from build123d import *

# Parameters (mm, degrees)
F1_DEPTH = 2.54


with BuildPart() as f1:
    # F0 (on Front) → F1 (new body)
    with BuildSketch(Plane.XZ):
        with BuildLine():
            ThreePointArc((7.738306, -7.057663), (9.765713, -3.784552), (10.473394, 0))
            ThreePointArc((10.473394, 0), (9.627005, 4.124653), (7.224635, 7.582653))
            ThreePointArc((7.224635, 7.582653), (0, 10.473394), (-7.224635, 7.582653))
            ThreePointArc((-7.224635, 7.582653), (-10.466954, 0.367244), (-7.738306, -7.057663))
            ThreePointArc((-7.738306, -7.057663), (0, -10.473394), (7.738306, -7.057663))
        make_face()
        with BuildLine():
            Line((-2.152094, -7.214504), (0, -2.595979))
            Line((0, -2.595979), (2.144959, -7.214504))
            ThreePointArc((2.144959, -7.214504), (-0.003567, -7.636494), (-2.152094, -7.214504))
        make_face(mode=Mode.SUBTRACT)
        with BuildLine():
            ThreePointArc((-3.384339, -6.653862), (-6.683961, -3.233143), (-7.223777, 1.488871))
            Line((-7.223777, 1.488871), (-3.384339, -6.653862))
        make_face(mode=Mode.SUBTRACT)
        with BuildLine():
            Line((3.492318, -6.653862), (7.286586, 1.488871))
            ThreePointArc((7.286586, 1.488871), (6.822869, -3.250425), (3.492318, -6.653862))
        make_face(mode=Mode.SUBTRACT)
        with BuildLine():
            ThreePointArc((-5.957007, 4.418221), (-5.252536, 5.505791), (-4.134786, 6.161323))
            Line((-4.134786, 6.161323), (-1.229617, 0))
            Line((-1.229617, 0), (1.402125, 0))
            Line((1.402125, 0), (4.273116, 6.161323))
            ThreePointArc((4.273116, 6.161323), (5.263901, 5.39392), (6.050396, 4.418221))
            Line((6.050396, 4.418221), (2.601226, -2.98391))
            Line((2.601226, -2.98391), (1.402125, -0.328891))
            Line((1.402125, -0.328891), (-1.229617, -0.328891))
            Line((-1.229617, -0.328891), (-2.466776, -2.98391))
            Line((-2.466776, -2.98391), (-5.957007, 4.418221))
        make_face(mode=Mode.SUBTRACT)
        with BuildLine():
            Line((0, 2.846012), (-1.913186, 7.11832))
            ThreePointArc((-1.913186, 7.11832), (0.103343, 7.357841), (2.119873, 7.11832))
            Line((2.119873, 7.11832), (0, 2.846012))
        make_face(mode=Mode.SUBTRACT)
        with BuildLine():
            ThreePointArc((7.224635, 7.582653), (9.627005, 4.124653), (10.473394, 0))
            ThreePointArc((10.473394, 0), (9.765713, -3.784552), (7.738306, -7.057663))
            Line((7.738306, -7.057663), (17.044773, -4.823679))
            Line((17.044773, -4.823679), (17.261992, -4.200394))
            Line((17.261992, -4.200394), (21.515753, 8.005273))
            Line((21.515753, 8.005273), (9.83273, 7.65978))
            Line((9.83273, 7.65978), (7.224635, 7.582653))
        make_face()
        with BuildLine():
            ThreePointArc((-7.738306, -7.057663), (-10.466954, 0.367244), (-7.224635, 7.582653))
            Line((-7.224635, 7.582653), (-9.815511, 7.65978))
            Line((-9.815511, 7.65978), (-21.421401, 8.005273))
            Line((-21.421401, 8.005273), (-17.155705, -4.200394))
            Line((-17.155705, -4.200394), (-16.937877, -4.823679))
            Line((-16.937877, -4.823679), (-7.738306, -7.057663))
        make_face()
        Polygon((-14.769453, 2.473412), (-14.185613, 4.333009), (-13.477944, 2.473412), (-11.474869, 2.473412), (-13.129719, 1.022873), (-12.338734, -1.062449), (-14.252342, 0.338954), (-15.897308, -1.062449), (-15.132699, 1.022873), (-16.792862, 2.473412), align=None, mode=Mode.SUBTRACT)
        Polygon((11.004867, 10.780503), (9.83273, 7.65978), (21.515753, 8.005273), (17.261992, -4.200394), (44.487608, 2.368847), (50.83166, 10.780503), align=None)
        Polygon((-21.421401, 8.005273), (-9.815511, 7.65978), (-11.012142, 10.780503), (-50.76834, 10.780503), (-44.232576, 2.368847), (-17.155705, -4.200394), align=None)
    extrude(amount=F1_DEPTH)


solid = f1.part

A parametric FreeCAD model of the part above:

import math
import FreeCAD as App
import Part
import Sketcher
from FreeCAD import Vector
Q = App.Units.Quantity

doc = App.newDocument("Part")
body = doc.addObject("PartDesign::Body", "Body")

# Sketch on XZ plane
sketch1 = body.newObject("Sketcher::SketchObject", "Sketch")
sketch1.AttachmentSupport = (doc.getObject("XZ_Plane"), [""])
sketch1.MapMode = "FlatFace"
sketch1.addGeometry([
    Part.ArcOfCircle(Part.Circle(Vector(0, 0.000001, 0), Vector(0, 0, 1), 10.473395), math.radians(-137.633856), math.radians(-42.366144)),  # 0
    Part.LineSegment(Vector(7.738306, -7.057663, 0), Vector(17.044773, -4.823679, 0)),  # 1
    Part.LineSegment(Vector(17.044773, -4.823679, 0), Vector(17.261992, -4.200394, 0)),  # 2
    Part.LineSegment(Vector(17.261992, -4.200394, 0), Vector(44.487608, 2.368847, 0)),  # 3
    Part.LineSegment(Vector(44.487608, 2.368847, 0), Vector(50.83166, 10.780503, 0)),  # 4
    Part.LineSegment(Vector(50.83166, 10.780503, 0), Vector(11.004867, 10.780503, 0)),  # 5
    Part.LineSegment(Vector(11.004867, 10.780503, 0), Vector(9.83273, 7.65978, 0)),  # 6
    Part.LineSegment(Vector(9.83273, 7.65978, 0), Vector(7.224635, 7.582653, 0)),  # 7
    Part.ArcOfCircle(Part.Circle(Vector(0, 0.000001, 0), Vector(0, 0, 1), 10.473393), math.radians(46.385053), math.radians(133.614947)),  # 8
    Part.LineSegment(Vector(-7.224635, 7.582653, 0), Vector(-9.815511, 7.65978, 0)),  # 9
    Part.LineSegment(Vector(-9.815511, 7.65978, 0), Vector(-11.012142, 10.780503, 0)),  # 10
    Part.LineSegment(Vector(-11.012142, 10.780503, 0), Vector(-50.76834, 10.780503, 0)),  # 11
    Part.LineSegment(Vector(-50.76834, 10.780503, 0), Vector(-44.232576, 2.368847, 0)),  # 12
    Part.LineSegment(Vector(-44.232576, 2.368847, 0), Vector(-17.155705, -4.200394, 0)),  # 13
    Part.LineSegment(Vector(-17.155705, -4.200394, 0), Vector(-16.937877, -4.823679, 0)),  # 14
    Part.LineSegment(Vector(-16.937877, -4.823679, 0), Vector(-7.738306, -7.057663, 0)),  # 15
    Part.LineSegment(Vector(-7.223777, 1.488871, 0), Vector(-3.384339, -6.653862, 0)),  # 16
    Part.ArcOfCircle(Part.Circle(Vector(0.01222, -0.07578, 0), Vector(0, 0, 1), 7.403228), math.radians(167.798693), math.radians(242.690667)),  # 17
    Part.ArcOfCircle(Part.Circle(Vector(-0.003567, -1.955978, 0), Vector(0, 0, 1), 5.680516), math.radians(-112.223925), math.radians(-67.776075)),  # 18
    Part.LineSegment(Vector(-2.152094, -7.214504, 0), Vector(0, -2.595979, 0)),  # 19
    Part.LineSegment(Vector(0, -2.595979, 0), Vector(2.144959, -7.214504, 0)),  # 20
    Part.ArcOfCircle(Part.Circle(Vector(0.324164, -0.222224, 0), Vector(0, 0, 1), 7.1696), math.radians(-63.775653), math.radians(13.807454)),  # 21
    Part.LineSegment(Vector(3.492318, -6.653862, 0), Vector(7.286586, 1.488871, 0)),  # 22
    Part.LineSegment(Vector(-16.792862, 2.473412, 0), Vector(-14.769453, 2.473412, 0)),  # 23
    Part.LineSegment(Vector(-14.769453, 2.473412, 0), Vector(-14.185613, 4.333009, 0)),  # 24
    Part.LineSegment(Vector(-14.185613, 4.333009, 0), Vector(-13.477944, 2.473412, 0)),  # 25
    Part.LineSegment(Vector(-13.477944, 2.473412, 0), Vector(-11.474869, 2.473412, 0)),  # 26
    Part.LineSegment(Vector(-11.474869, 2.473412, 0), Vector(-13.129719, 1.022873, 0)),  # 27
    Part.LineSegment(Vector(-13.129719, 1.022873, 0), Vector(-12.338734, -1.062449, 0)),  # 28
    Part.LineSegment(Vector(-12.338734, -1.062449, 0), Vector(-14.252342, 0.338954, 0)),  # 29
    Part.LineSegment(Vector(-14.252342, 0.338954, 0), Vector(-15.897308, -1.062449, 0)),  # 30
    Part.LineSegment(Vector(-15.897308, -1.062449, 0), Vector(-15.132699, 1.022873, 0)),  # 31
    Part.LineSegment(Vector(-15.132699, 1.022873, 0), Vector(-16.792862, 2.473412, 0)),  # 32
    Part.LineSegment(Vector(-2.466776, -2.98391, 0), Vector(-5.957007, 4.418221, 0)),  # 33
    Part.ArcOfCircle(Part.Circle(Vector(-3.311231, 3.47637, 0), Vector(0, 0, 1), 2.808419), math.radians(107.052341), math.radians(160.405146)),  # 34
    Part.LineSegment(Vector(-4.134786, 6.161323, 0), Vector(-1.229617, 0, 0)),  # 35
    Part.LineSegment(Vector(-1.229617, 0, 0), Vector(1.402125, 0, 0)),  # 36
    Part.LineSegment(Vector(1.402125, 0, 0), Vector(4.273116, 6.161323, 0)),  # 37
    Part.ArcOfCircle(Part.Circle(Vector(1.494583, 1.550694, 0), Vector(0, 0, 1), 5.383135), math.radians(32.187192), math.radians(58.925297)),  # 38
    Part.LineSegment(Vector(6.050396, 4.418221, 0), Vector(2.601226, -2.98391, 0)),  # 39
    Part.LineSegment(Vector(2.601226, -2.98391, 0), Vector(1.402125, -0.328891, 0)),  # 40
    Part.LineSegment(Vector(1.402125, -0.328891, 0), Vector(-1.229617, -0.328891, 0)),  # 41
    Part.LineSegment(Vector(-1.229617, -0.328891, 0), Vector(-2.466776, -2.98391, 0)),  # 42
    Part.LineSegment(Vector(2.119873, 7.11832, 0), Vector(0, 2.846012, 0)),  # 43
    Part.LineSegment(Vector(0, 2.846012, 0), Vector(-1.913186, 7.11832, 0)),  # 44
    Part.ArcOfCircle(Part.Circle(Vector(0.103344, -1.25051, 0), Vector(0, 0, 1), 8.608351), math.radians(76.452423), math.radians(103.547577)),  # 45
], False)
sketch1.addConstraint([
    Sketcher.Constraint("Coincident", 0, 2, 1, 1),
    Sketcher.Constraint("Coincident", 1, 2, 2, 1),
    Sketcher.Constraint("Coincident", 2, 2, 3, 1),
    Sketcher.Constraint("Coincident", 3, 2, 4, 1),
    Sketcher.Constraint("Coincident", 4, 2, 5, 1),
    Sketcher.Constraint("Coincident", 5, 2, 6, 1),
    Sketcher.Constraint("Coincident", 6, 2, 7, 1),
    Sketcher.Constraint("Coincident", 7, 2, 8, 1),
    Sketcher.Constraint("Coincident", 8, 2, 9, 1),
    Sketcher.Constraint("Coincident", 9, 2, 10, 1),
    Sketcher.Constraint("Coincident", 10, 2, 11, 1),
    Sketcher.Constraint("Coincident", 11, 2, 12, 1),
    Sketcher.Constraint("Coincident", 12, 2, 13, 1),
    Sketcher.Constraint("Coincident", 13, 2, 14, 1),
    Sketcher.Constraint("Coincident", 14, 2, 15, 1),
    Sketcher.Constraint("Coincident", 15, 2, 0, 1),
    Sketcher.Constraint("Coincident", 16, 1, 17, 1),
    Sketcher.Constraint("Coincident", 17, 2, 16, 2),
    Sketcher.Constraint("Coincident", 18, 1, 19, 1),
    Sketcher.Constraint("Coincident", 19, 2, 20, 1),
    Sketcher.Constraint("Coincident", 20, 2, 18, 2),
    Sketcher.Constraint("Coincident", 21, 1, 22, 1),
    Sketcher.Constraint("Coincident", 22, 2, 21, 2),
    Sketcher.Constraint("Coincident", 23, 2, 24, 1),
    Sketcher.Constraint("Coincident", 24, 2, 25, 1),
    Sketcher.Constraint("Coincident", 25, 2, 26, 1),
    Sketcher.Constraint("Coincident", 26, 2, 27, 1),
    Sketcher.Constraint("Coincident", 27, 2, 28, 1),
    Sketcher.Constraint("Coincident", 28, 2, 29, 1),
    Sketcher.Constraint("Coincident", 29, 2, 30, 1),
    Sketcher.Constraint("Coincident", 30, 2, 31, 1),
    Sketcher.Constraint("Coincident", 31, 2, 32, 1),
    Sketcher.Constraint("Coincident", 32, 2, 23, 1),
    Sketcher.Constraint("Coincident", 33, 2, 34, 2),
    Sketcher.Constraint("Coincident", 34, 1, 35, 1),
    Sketcher.Constraint("Coincident", 35, 2, 36, 1),
    Sketcher.Constraint("Coincident", 36, 2, 37, 1),
    Sketcher.Constraint("Coincident", 37, 2, 38, 2),
    Sketcher.Constraint("Coincident", 38, 1, 39, 1),
    Sketcher.Constraint("Coincident", 39, 2, 40, 1),
    Sketcher.Constraint("Coincident", 40, 2, 41, 1),
    Sketcher.Constraint("Coincident", 41, 2, 42, 1),
    Sketcher.Constraint("Coincident", 42, 2, 33, 1),
    Sketcher.Constraint("Coincident", 43, 2, 44, 1),
    Sketcher.Constraint("Coincident", 44, 2, 45, 2),
    Sketcher.Constraint("Coincident", 45, 1, 43, 1),
    Sketcher.Constraint("Horizontal", 5),
    Sketcher.Constraint("Horizontal", 11),
    Sketcher.Constraint("Horizontal", 23),
    Sketcher.Constraint("Horizontal", 26),
    Sketcher.Constraint("Horizontal", 36),
    Sketcher.Constraint("Horizontal", 41),
    Sketcher.Constraint("Coincident", 0, 3, -1, 1),
    Sketcher.Constraint("Coincident", 8, 3, -1, 1),
    Sketcher.Constraint("PointOnObject", 19, 2, -2),
    Sketcher.Constraint("PointOnObject", 35, 2, -1),
    Sketcher.Constraint("PointOnObject", 43, 2, -2),
    Sketcher.Constraint("Radius", 21, Q("7.1696 mm")),
    Sketcher.Constraint("Radius", 34, Q("2.808419 mm")),
    Sketcher.Constraint("Radius", 45, Q("8.608351 mm")),
    Sketcher.Constraint("Radius", 0, Q("10.473395 mm")),
    Sketcher.Constraint("Radius", 8, Q("10.473393 mm")),
    Sketcher.Constraint("Radius", 17, Q("7.403228 mm")),
    Sketcher.Constraint("Radius", 18, Q("5.680516 mm")),
    Sketcher.Constraint("Radius", 38, Q("5.383135 mm")),
    Sketcher.Constraint("DistanceY", 21, 3, 38, 3, Q("0.0697999 in")),
    Sketcher.Constraint("DistanceX", 21, 3, 5, 2, Q("0.4205001 in")),
    Sketcher.Constraint("DistanceX", 23, 1, 23, 2, Q("2.023409 mm")),
    Sketcher.Constraint("DistanceX", 36, 1, 36, 2, Q("2.631742 mm")),
    Sketcher.Constraint("DistanceX", 41, 2, 41, 1, Q("2.631742 mm")),
    Sketcher.Constraint("DistanceX", 31, 2, -1, 1, Q("15.132699 mm")),
    Sketcher.Constraint("DistanceY", 18, 3, 17, 3, Q("1.880199 mm")),
    Sketcher.Constraint("DistanceY", 1, 2, 18, 3, Q("2.867701 mm")),
    Sketcher.Constraint("DistanceX", 13, 2, 15, 2, Q("9.417399 mm")),
    Sketcher.Constraint("DistanceY", 16, 1, 34, 3, Q("1.987499 mm")),
    Sketcher.Constraint("DistanceY", 15, 2, 17, 2, Q("0.403801 mm")),
    Sketcher.Constraint("DistanceY", 19, 2, 18, 3, Q("0.640001 mm")),
    Sketcher.Constraint("DistanceY", 0, 2, 21, 1, Q("0.403801 mm")),
    Sketcher.Constraint("DistanceX", 24, 2, 9, 2, Q("4.370102 mm")),
    Sketcher.Constraint("DistanceY", 27, 2, 16, 1, Q("0.465998 mm")),
    Sketcher.Constraint("DistanceY", 39, 2, 45, 3, Q("1.7334 mm")),
    Sketcher.Constraint("DistanceX", 36, 2, 39, 2, Q("1.199101 mm")),
    Sketcher.Constraint("DistanceY", 42, 2, 45, 3, Q("1.7334 mm")),
    Sketcher.Constraint("DistanceX", 34, 1, 44, 2, Q("2.2216 mm")),
    Sketcher.Constraint("DistanceY", 33, 2, 44, 2, Q("2.700099 mm")),
    Sketcher.Constraint("DistanceY", 38, 1, 45, 1, Q("2.700099 mm")),
    Sketcher.Constraint("Distance", 1, Q("9.570842 mm")),
    Sketcher.Constraint("Distance", 2, Q("0.660052 mm")),
    Sketcher.Constraint("Distance", 6, Q("3.333589 mm")),
    Sketcher.Constraint("Distance", 10, Q("3.34228 mm")),
    Sketcher.Constraint("Distance", 12, Q("10.652332 mm")),
    Sketcher.Constraint("Distance", 15, Q("9.466931 mm")),
    Sketcher.Constraint("Distance", 16, Q("9.002521 mm")),
    Sketcher.Constraint("Distance", 19, Q("5.09532 mm")),
    Sketcher.Constraint("Distance", 20, Q("5.09231 mm")),
    Sketcher.Constraint("Distance", 22, Q("8.98335 mm")),
    Sketcher.Constraint("Distance", 27, Q("2.200589 mm")),
    Sketcher.Constraint("Distance", 31, Q("2.22108 mm")),
    Sketcher.Constraint("Distance", 33, Q("8.183719 mm")),
    Sketcher.Constraint("Distance", 37, Q("6.797389 mm")),
    Sketcher.Constraint("Distance", 39, Q("8.166292 mm")),
    Sketcher.Constraint("Distance", 40, Q("2.91324 mm")),
    Sketcher.Constraint("Distance", 42, Q("2.92911 mm")),
    Sketcher.Constraint("Distance", 44, Q("4.681121 mm")),
    Sketcher.Constraint("DistanceX", 5, 2, 5, 1, Q("39.826793 mm")),
    Sketcher.Constraint("DistanceX", 11, 2, 11, 1, Q("39.756198 mm")),
    Sketcher.Constraint("DistanceX", 26, 1, 26, 2, Q("2.003075 mm")),
    Sketcher.Constraint("DistanceX", -1, 1, 17, 3, Q("0.01222 mm")),
    Sketcher.Constraint("DistanceY", 17, 3, -1, 1, Q("0.07578 mm")),
    Sketcher.Constraint("DistanceX", 34, 3, -1, 1, Q("3.311231 mm")),
    Sketcher.Constraint("DistanceY", -1, 1, 34, 3, Q("3.47637 mm")),
    Sketcher.Constraint("DistanceY", 45, 3, -1, 1, Q("1.25051 mm")),
    Sketcher.Constraint("DistanceX", -1, 1, 2, 2, Q("17.261992 mm")),
    Sketcher.Constraint("DistanceX", -1, 1, 3, 2, Q("44.487608 mm")),
    Sketcher.Constraint("DistanceX", -1, 1, 4, 2, Q("50.83166 mm")),
    Sketcher.Constraint("DistanceX", -1, 1, 6, 2, Q("9.83273 mm")),
    Sketcher.Constraint("DistanceY", -1, 1, 6, 2, Q("7.65978 mm")),
    Sketcher.Constraint("DistanceX", 9, 2, -1, 1, Q("9.815511 mm")),
    Sketcher.Constraint("DistanceY", -1, 1, 9, 2, Q("7.65978 mm")),
    Sketcher.Constraint("DistanceX", 11, 2, -1, 1, Q("50.76834 mm")),
    Sketcher.Constraint("DistanceY", 14, 2, -1, 1, Q("4.823679 mm")),
    Sketcher.Constraint("DistanceX", -1, 1, 20, 2, Q("2.144959 mm")),
    Sketcher.Constraint("DistanceY", 21, 1, -1, 1, Q("6.653862 mm")),
    Sketcher.Constraint("DistanceY", -1, 1, 22, 2, Q("1.488871 mm")),
    Sketcher.Constraint("DistanceY", -1, 1, 24, 2, Q("4.333009 mm")),
    Sketcher.Constraint("DistanceX", 26, 2, -1, 1, Q("11.474869 mm")),
    Sketcher.Constraint("DistanceX", 27, 2, -1, 1, Q("13.129719 mm")),
    Sketcher.Constraint("DistanceY", 28, 2, -1, 1, Q("1.062449 mm")),
    Sketcher.Constraint("DistanceX", 30, 2, -1, 1, Q("15.897308 mm")),
    Sketcher.Constraint("DistanceY", 30, 2, -1, 1, Q("1.062449 mm")),
    Sketcher.Constraint("DistanceX", 32, 2, -1, 1, Q("16.792862 mm")),
    Sketcher.Constraint("DistanceY", -1, 1, 33, 2, Q("4.418221 mm")),
    Sketcher.Constraint("DistanceY", -1, 1, 38, 1, Q("4.418221 mm")),
    Sketcher.Constraint("DistanceY", 40, 2, -1, 1, Q("0.328891 mm")),
    Sketcher.Constraint("DistanceY", -1, 1, 43, 2, Q("2.846012 mm")),
    Sketcher.Constraint("DistanceY", 2, 2, 3, 2, Q("6.569241 mm")),
    Sketcher.Constraint("DistanceY", 7, 2, 5, 2, Q("3.19785 mm")),
    Sketcher.Constraint("DistanceY", 38, 3, 8, 2, Q("6.031959 mm")),
    Sketcher.Constraint("DistanceX", 12, 2, 8, 2, Q("37.007941 mm")),
    Sketcher.Constraint("DistanceY", 15, 2, 13, 2, Q("2.857269 mm")),
    Sketcher.Constraint("DistanceY", 16, 1, 23, 2, Q("0.984541 mm")),
    Sketcher.Constraint("DistanceX", 25, 2, 28, 2, Q("1.13921 mm")),
    Sketcher.Constraint("DistanceY", 29, 2, 27, 2, Q("0.683919 mm")),
    Sketcher.Constraint("DistanceX", 23, 2, 29, 2, Q("0.517111 mm")),
])
pad1 = body.newObject("PartDesign::Pad", "Pad")
pad1.Profile = sketch1
pad1.Length = Q("0.1 in")

doc.recompute()
